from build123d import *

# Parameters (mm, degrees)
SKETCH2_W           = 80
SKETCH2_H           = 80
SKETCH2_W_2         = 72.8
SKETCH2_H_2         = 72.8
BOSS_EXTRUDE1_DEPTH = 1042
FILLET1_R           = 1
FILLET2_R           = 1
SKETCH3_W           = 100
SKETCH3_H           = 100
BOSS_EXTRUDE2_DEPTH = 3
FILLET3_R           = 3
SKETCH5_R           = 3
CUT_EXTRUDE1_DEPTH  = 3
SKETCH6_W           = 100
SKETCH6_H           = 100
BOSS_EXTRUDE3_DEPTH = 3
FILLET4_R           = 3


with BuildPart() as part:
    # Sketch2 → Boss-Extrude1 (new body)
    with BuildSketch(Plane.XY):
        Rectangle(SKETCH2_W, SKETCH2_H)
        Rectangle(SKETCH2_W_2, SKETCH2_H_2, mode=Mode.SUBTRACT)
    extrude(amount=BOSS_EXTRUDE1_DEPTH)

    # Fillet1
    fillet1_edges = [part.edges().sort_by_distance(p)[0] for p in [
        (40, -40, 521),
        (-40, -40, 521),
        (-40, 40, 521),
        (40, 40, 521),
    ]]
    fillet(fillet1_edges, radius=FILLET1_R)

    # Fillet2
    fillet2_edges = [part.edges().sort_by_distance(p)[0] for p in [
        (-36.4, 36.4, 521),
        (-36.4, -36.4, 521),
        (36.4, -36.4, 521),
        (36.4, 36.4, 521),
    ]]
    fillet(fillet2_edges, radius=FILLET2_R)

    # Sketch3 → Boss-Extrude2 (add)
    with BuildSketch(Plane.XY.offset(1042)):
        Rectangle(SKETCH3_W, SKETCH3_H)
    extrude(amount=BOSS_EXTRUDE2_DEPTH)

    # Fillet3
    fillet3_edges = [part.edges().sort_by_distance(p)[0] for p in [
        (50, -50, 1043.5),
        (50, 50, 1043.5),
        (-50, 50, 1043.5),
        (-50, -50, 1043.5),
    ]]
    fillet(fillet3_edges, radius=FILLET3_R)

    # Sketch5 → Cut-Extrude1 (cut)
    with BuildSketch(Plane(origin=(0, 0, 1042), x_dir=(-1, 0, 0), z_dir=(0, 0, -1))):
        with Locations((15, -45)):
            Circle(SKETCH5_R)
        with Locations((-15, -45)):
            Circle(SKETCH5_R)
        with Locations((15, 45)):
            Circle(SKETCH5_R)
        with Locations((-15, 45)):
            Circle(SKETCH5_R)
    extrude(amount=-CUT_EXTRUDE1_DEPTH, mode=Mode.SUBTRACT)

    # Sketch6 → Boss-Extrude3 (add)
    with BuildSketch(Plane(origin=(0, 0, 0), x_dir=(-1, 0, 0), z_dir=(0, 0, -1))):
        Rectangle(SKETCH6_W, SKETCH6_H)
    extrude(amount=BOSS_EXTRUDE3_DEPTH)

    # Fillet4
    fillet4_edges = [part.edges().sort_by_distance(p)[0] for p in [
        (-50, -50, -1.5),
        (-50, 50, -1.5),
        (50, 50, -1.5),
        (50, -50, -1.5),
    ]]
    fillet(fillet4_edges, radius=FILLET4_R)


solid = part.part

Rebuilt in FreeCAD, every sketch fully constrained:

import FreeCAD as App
import Part
import Sketcher

V = App.Vector
Q = App.Units.Quantity


def edges_at(feature, points):
    """Names of the edges that pass closest to the given points."""
    edges = feature.Shape.Edges
    near = lambda p: min(range(len(edges)), key=lambda i: edges[i].distToShape(Part.Vertex(*p))[0])
    return sorted({f"Edge{near(p) + 1}" for p in points})

doc = App.newDocument("Part")
body = doc.addObject("PartDesign::Body", "Body")

sketch1 = body.newObject("Sketcher::SketchObject", "Sketch")
sketch1.AttachmentSupport = (doc.getObject("XY_Plane"), [""])
sketch1.MapMode = "FlatFace"
sketch1.addGeometry([
    Part.LineSegment(V(-40, 40, 0), V(-40, -40, 0)),
    Part.LineSegment(V(-40, -40, 0), V(40, -40, 0)),
    Part.LineSegment(V(40, -40, 0), V(40, 40, 0)),
    Part.LineSegment(V(40, 40, 0), V(-40, 40, 0)),
    Part.LineSegment(V(36, -36, 0), V(-36, -36, 0)),
    Part.LineSegment(V(-36, -36, 0), V(-36, 36, 0)),
    Part.LineSegment(V(-36, 36, 0), V(36, 36, 0)),
    Part.LineSegment(V(36, 36, 0), V(36, -36, 0)),
], False)
sketch1.addConstraint([
    Sketcher.Constraint("Coincident", 0, 2, 1, 1),
    Sketcher.Constraint("Coincident", 1, 2, 2, 1),
    Sketcher.Constraint("Coincident", 2, 2, 3, 1),
    Sketcher.Constraint("Coincident", 3, 2, 0, 1),
    Sketcher.Constraint("Coincident", 4, 2, 5, 1),
    Sketcher.Constraint("Coincident", 5, 2, 6, 1),
    Sketcher.Constraint("Coincident", 6, 2, 7, 1),
    Sketcher.Constraint("Coincident", 7, 2, 4, 1),
    Sketcher.Constraint("Vertical", 0),
    Sketcher.Constraint("Horizontal", 1),
    Sketcher.Constraint("Vertical", 2),
    Sketcher.Constraint("Horizontal", 3),
    Sketcher.Constraint("Horizontal", 4),
    Sketcher.Constraint("Vertical", 5),
    Sketcher.Constraint("Horizontal", 6),
    Sketcher.Constraint("Vertical", 7),
    Sketcher.Constraint("Symmetric", 0, 2, 2, 2, -1, 1),
    Sketcher.Constraint("Symmetric", 4, 2, 6, 2, -1, 1),
    Sketcher.Constraint("Equal", 3, 0),
    Sketcher.Constraint("Equal", 6, 5),
    Sketcher.Constraint("DistanceX", 1, 1, 1, 2, Q("80 mm")),
    Sketcher.Constraint("DistanceX", 4, 2, 4, 1, Q("72.8 mm")),
])
pad1 = body.newObject("PartDesign::Pad", "Pad")
pad1.Profile = sketch1
pad1.Length = 1042
doc.recompute()

fillet = body.newObject("PartDesign::Fillet", "Fillet")
fillet.Base = (pad1, edges_at(pad1, [
    (40, -40, 521),
    (-40, -40, 521),
    (-40, 40, 521),
    (40, 40, 521),
]))
fillet.Radius = 1
doc.recompute()

fillet2 = body.newObject("PartDesign::Fillet", "Fillet001")
fillet2.Base = (fillet, edges_at(fillet, [
    (-36.4, 36.4, 521),
    (-36.4, -36.4, 521),
    (36.4, -36.4, 521),
    (36.4, 36.4, 521),
]))
fillet2.Radius = 1

sketch2 = body.newObject("Sketcher::SketchObject", "Sketch001")
sketch2.AttachmentSupport = (doc.getObject("XY_Plane"), [""])
sketch2.MapMode = "FlatFace"
sketch2.AttachmentOffset = App.Placement(V(0, 0, 1042), App.Rotation())
sketch2.addGeometry([
    Part.LineSegment(V(-50, 50, 0), V(-50, -50, 0)),
    Part.LineSegment(V(-50, -50, 0), V(50, -50, 0)),
    Part.LineSegment(V(50, -50, 0), V(50, 50, 0)),
    Part.LineSegment(V(50, 50, 0), V(-50, 50, 0)),
], False)
sketch2.addConstraint([
    Sketcher.Constraint("Coincident", 0, 2, 1, 1),
    Sketcher.Constraint("Coincident", 1, 2, 2, 1),
    Sketcher.Constraint("Coincident", 2, 2, 3, 1),
    Sketcher.Constraint("Coincident", 3, 2, 0, 1),
    Sketcher.Constraint("Vertical", 0),
    Sketcher.Constraint("Horizontal", 1),
    Sketcher.Constraint("Vertical", 2),
    Sketcher.Constraint("Horizontal", 3),
    Sketcher.Constraint("Symmetric", 0, 2, 2, 2, -1, 1),
    Sketcher.Constraint("Equal", 3, 0),
    Sketcher.Constraint("DistanceX", 1, 1, 1, 2, Q("100 mm")),
])
pad2 = body.newObject("PartDesign::Pad", "Pad001")
pad2.Profile = sketch2
pad2.Length = 3
doc.recompute()

fillet3 = body.newObject("PartDesign::Fillet", "Fillet002")
fillet3.Base = (pad2, edges_at(pad2, [
    (50, -50, 1043.5),
    (50, 50, 1043.5),
    (-50, 50, 1043.5),
    (-50, -50, 1043.5),
]))
fillet3.Radius = 3

sketch3 = body.newObject("Sketcher::SketchObject", "Sketch002")
sketch3.AttachmentSupport = (doc.getObject("XY_Plane"), [""])
sketch3.MapMode = "FlatFace"
sketch3.AttachmentOffset = App.Placement(V(0, 0, 1042), App.Rotation())
sketch3.addGeometry([
    Part.Circle(V(-15, -45, 0), V(0, 0, 1), 3),
    Part.Circle(V(15, -45, 0), V(0, 0, 1), 3),
    Part.Circle(V(-15, 45, 0), V(0, 0, 1), 3),
    Part.Circle(V(15, 45, 0), V(0, 0, 1), 3),
], False)
sketch3.addConstraint([
    Sketcher.Constraint("Equal", 0, 1),
    Sketcher.Constraint("Equal", 1, 2),
    Sketcher.Constraint("Equal", 2, 3),
    Sketcher.Constraint("Symmetric", 1, 3, 2, 3, -1, 1),
    Sketcher.Constraint("Symmetric", 0, 3, 3, 3, -1, 1),
    Sketcher.Constraint("Symmetric", 0, 3, 1, 3, -2),
    Sketcher.Constraint("Diameter", 0, Q("6 mm")),
    Sketcher.Constraint("DistanceX", 0, 3, -1, 1, Q("15 mm")),
    Sketcher.Constraint("DistanceY", 0, 3, -1, 1, Q("45 mm")),
])
pocket1 = body.newObject("PartDesign::Pocket", "Pocket")
pocket1.Profile = sketch3
pocket1.Length = 3
pocket1.Reversed = True

sketch4 = body.newObject("Sketcher::SketchObject", "Sketch003")
sketch4.AttachmentSupport = (doc.getObject("XY_Plane"), [""])
sketch4.MapMode = "FlatFace"
sketch4.addGeometry([
    Part.LineSegment(V(50, 50, 0), V(50, -50, 0)),
    Part.LineSegment(V(50, -50, 0), V(-50, -50, 0)),
    Part.LineSegment(V(-50, -50, 0), V(-50, 50, 0)),
    Part.LineSegment(V(-50, 50, 0), V(50, 50, 0)),
], False)
sketch4.addConstraint([
    Sketcher.Constraint("Coincident", 0, 2, 1, 1),
    Sketcher.Constraint("Coincident", 1, 2, 2, 1),
    Sketcher.Constraint("Coincident", 2, 2, 3, 1),
    Sketcher.Constraint("Coincident", 3, 2, 0, 1),
    Sketcher.Constraint("Vertical", 0),
    Sketcher.Constraint("Horizontal", 1),
    Sketcher.Constraint("Vertical", 2),
    Sketcher.Constraint("Horizontal", 3),
    Sketcher.Constraint("Symmetric", 0, 2, 2, 2, -1, 1),
    Sketcher.Constraint("Equal", 3, 0),
    Sketcher.Constraint("DistanceX", 1, 2, 1, 1, Q("100 mm")),
])
pad3 = body.newObject("PartDesign::Pad", "Pad002")
pad3.Profile = sketch4
pad3.Length = 3
pad3.Reversed = True
doc.recompute()

fillet4 = body.newObject("PartDesign::Fillet", "Fillet003")
fillet4.Base = (pad3, edges_at(pad3, [
    (-50, -50, -1.5),
    (-50, 50, -1.5),
    (50, 50, -1.5),
    (50, -50, -1.5),
]))
fillet4.Radius = 3

doc.recompute()
